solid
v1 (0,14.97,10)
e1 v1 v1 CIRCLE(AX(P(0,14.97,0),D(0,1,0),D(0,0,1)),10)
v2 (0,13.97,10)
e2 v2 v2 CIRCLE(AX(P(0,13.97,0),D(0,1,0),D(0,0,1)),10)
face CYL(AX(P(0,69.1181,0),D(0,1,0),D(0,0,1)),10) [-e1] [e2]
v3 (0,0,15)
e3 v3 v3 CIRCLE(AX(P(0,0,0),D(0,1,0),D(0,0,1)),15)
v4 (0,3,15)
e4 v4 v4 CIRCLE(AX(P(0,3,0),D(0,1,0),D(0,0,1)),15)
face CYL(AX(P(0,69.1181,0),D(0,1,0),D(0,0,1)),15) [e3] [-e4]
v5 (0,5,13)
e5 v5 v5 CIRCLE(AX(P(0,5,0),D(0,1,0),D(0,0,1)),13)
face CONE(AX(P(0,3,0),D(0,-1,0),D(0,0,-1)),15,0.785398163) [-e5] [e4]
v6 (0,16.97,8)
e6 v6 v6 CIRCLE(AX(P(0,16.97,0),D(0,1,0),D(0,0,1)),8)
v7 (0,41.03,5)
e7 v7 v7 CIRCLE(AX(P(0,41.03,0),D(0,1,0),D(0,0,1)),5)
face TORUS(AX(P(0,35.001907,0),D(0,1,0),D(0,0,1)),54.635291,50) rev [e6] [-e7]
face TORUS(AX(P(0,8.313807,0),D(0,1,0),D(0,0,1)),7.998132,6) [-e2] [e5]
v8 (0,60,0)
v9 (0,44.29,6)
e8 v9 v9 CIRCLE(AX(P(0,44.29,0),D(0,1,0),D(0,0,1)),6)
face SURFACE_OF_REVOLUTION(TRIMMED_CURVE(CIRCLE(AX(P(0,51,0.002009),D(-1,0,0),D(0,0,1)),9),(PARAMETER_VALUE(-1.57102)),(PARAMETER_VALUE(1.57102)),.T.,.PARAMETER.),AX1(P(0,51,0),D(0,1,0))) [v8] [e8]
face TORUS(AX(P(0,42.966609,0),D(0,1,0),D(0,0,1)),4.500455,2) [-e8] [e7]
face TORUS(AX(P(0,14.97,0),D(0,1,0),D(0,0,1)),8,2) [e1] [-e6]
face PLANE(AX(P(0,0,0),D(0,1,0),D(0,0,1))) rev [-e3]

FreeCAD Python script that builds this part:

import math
import FreeCAD as App
import Part
import Sketcher
Q = App.Units.Quantity

doc = App.newDocument("Part")
body = doc.addObject("PartDesign::Body", "Body")

# Sketch on XY plane
sketch1 = doc.addObject("Sketcher::SketchObject", "Sketch")
body.addObject(sketch1)
sketch1.AttachmentSupport = (doc.XY_Plane, [""])
sketch1.MapMode = "FlatFace"
sketch1.addGeometry([
    Part.ArcOfCircle(Part.Circle(App.Vector(0, 51, 0), App.Vector(0, 0, 1), 9), math.radians(90), math.radians(228)),  # 0
    Part.ArcOfCircle(Part.Circle(App.Vector(-4.5, 43, 0), App.Vector(0, 0, 1), 2), math.radians(139), math.radians(256)),  # 1
    Part.ArcOfCircle(Part.Circle(App.Vector(-54.6, 35, 0), App.Vector(0, 0, 1), 50), math.radians(-21), math.radians(7)),  # 2
    Part.ArcOfCircle(Part.Circle(App.Vector(-8, 15, 0), App.Vector(0, 0, 1), 2), math.radians(90), math.radians(180)),  # 3
    Part.LineSegment(App.Vector(-10, 15, 0), App.Vector(-10, 14, 0)),  # 4
    Part.ArcOfCircle(Part.Circle(App.Vector(-8, 8.3, 0), App.Vector(0, 0, 1), 6), math.radians(109), math.radians(214)),  # 5
    Part.LineSegment(App.Vector(-13, 5, 0), App.Vector(-15, 3, 0)),  # 6
    Part.LineSegment(App.Vector(-15, 3, 0), App.Vector(-15, 0, 0)),  # 7
    Part.LineSegment(App.Vector(-15, 0, 0), App.Vector(0, 0, 0)),  # 8
    Part.LineSegment(App.Vector(0, 0, 0), App.Vector(0, 60, 0)),  # 9
], False)
sketch1.addConstraint([
    Sketcher.Constraint("Coincident", 0, 2, 1, 1),
    Sketcher.Constraint("Coincident", 1, 2, 2, 2),
    Sketcher.Constraint("Coincident", 2, 1, 3, 1),
    Sketcher.Constraint("Tangent", 3, 2, 4, 1),
    Sketcher.Constraint("Coincident", 4, 2, 5, 1),
    Sketcher.Constraint("Coincident", 5, 2, 6, 1),
    Sketcher.Constraint("Coincident", 6, 2, 7, 1),
    Sketcher.Constraint("Coincident", 7, 2, 8, 1),
    Sketcher.Constraint("Coincident", 8, 2, 9, 1),
    Sketcher.Constraint("Coincident", 9, 2, 0, 1),
    Sketcher.Constraint("Vertical", 4),
    Sketcher.Constraint("Vertical", 7),
    Sketcher.Constraint("Horizontal", 8),
    Sketcher.Constraint("Vertical", 9),
    Sketcher.Constraint("Coincident", 8, 2, -1, 1),
    Sketcher.Constraint("Equal", 1, 3),
    Sketcher.Constraint("Vertical", 3, 3, 2, 1),
    Sketcher.Constraint("Radius", 0, Q("9 mm")),
    Sketcher.Constraint("Radius", 1, Q("2 mm")),
    Sketcher.Constraint("Radius", 2, Q("50 mm")),
    Sketcher.Constraint("Radius", 5, Q("6 mm")),
    Sketcher.Constraint("DistanceX", 8, 1, 8, 2, Q("15 mm")),
    Sketcher.Constraint("DistanceY", 4, 2, 4, 1, Q("1 mm")),
    Sketcher.Constraint("DistanceY", 7, 2, 7, 1, Q("3 mm")),
    Sketcher.Constraint("DistanceY", 9, 1, 9, 2, Q("60 mm")),
    Sketcher.Constraint("Angle", 6, Q("-135 deg")),
    Sketcher.Constraint("DistanceX", 3, 3, -1, 1, Q("8 mm")),
    Sketcher.Constraint("DistanceX", 0, 2, -1, 1, Q("6 mm")),
    Sketcher.Constraint("DistanceX", 1, 2, -1, 1, Q("5 mm")),
    Sketcher.Constraint("DistanceX", 5, 2, -1, 1, Q("13 mm")),
    Sketcher.Constraint("DistanceY", -1, 1, 3, 3, Q("14.97 mm")),
    Sketcher.Constraint("DistanceY", -1, 1, 0, 2, Q("44.29 mm")),
    Sketcher.Constraint("DistanceY", -1, 1, 1, 2, Q("41.03 mm")),
])
revolution = doc.addObject("PartDesign::Revolution", "Revolution")
body.addObject(revolution)
revolution.Profile = sketch1
revolution.ReferenceAxis = (sketch1, ["V_Axis"])
revolution.Angle = 360

doc.recompute()
